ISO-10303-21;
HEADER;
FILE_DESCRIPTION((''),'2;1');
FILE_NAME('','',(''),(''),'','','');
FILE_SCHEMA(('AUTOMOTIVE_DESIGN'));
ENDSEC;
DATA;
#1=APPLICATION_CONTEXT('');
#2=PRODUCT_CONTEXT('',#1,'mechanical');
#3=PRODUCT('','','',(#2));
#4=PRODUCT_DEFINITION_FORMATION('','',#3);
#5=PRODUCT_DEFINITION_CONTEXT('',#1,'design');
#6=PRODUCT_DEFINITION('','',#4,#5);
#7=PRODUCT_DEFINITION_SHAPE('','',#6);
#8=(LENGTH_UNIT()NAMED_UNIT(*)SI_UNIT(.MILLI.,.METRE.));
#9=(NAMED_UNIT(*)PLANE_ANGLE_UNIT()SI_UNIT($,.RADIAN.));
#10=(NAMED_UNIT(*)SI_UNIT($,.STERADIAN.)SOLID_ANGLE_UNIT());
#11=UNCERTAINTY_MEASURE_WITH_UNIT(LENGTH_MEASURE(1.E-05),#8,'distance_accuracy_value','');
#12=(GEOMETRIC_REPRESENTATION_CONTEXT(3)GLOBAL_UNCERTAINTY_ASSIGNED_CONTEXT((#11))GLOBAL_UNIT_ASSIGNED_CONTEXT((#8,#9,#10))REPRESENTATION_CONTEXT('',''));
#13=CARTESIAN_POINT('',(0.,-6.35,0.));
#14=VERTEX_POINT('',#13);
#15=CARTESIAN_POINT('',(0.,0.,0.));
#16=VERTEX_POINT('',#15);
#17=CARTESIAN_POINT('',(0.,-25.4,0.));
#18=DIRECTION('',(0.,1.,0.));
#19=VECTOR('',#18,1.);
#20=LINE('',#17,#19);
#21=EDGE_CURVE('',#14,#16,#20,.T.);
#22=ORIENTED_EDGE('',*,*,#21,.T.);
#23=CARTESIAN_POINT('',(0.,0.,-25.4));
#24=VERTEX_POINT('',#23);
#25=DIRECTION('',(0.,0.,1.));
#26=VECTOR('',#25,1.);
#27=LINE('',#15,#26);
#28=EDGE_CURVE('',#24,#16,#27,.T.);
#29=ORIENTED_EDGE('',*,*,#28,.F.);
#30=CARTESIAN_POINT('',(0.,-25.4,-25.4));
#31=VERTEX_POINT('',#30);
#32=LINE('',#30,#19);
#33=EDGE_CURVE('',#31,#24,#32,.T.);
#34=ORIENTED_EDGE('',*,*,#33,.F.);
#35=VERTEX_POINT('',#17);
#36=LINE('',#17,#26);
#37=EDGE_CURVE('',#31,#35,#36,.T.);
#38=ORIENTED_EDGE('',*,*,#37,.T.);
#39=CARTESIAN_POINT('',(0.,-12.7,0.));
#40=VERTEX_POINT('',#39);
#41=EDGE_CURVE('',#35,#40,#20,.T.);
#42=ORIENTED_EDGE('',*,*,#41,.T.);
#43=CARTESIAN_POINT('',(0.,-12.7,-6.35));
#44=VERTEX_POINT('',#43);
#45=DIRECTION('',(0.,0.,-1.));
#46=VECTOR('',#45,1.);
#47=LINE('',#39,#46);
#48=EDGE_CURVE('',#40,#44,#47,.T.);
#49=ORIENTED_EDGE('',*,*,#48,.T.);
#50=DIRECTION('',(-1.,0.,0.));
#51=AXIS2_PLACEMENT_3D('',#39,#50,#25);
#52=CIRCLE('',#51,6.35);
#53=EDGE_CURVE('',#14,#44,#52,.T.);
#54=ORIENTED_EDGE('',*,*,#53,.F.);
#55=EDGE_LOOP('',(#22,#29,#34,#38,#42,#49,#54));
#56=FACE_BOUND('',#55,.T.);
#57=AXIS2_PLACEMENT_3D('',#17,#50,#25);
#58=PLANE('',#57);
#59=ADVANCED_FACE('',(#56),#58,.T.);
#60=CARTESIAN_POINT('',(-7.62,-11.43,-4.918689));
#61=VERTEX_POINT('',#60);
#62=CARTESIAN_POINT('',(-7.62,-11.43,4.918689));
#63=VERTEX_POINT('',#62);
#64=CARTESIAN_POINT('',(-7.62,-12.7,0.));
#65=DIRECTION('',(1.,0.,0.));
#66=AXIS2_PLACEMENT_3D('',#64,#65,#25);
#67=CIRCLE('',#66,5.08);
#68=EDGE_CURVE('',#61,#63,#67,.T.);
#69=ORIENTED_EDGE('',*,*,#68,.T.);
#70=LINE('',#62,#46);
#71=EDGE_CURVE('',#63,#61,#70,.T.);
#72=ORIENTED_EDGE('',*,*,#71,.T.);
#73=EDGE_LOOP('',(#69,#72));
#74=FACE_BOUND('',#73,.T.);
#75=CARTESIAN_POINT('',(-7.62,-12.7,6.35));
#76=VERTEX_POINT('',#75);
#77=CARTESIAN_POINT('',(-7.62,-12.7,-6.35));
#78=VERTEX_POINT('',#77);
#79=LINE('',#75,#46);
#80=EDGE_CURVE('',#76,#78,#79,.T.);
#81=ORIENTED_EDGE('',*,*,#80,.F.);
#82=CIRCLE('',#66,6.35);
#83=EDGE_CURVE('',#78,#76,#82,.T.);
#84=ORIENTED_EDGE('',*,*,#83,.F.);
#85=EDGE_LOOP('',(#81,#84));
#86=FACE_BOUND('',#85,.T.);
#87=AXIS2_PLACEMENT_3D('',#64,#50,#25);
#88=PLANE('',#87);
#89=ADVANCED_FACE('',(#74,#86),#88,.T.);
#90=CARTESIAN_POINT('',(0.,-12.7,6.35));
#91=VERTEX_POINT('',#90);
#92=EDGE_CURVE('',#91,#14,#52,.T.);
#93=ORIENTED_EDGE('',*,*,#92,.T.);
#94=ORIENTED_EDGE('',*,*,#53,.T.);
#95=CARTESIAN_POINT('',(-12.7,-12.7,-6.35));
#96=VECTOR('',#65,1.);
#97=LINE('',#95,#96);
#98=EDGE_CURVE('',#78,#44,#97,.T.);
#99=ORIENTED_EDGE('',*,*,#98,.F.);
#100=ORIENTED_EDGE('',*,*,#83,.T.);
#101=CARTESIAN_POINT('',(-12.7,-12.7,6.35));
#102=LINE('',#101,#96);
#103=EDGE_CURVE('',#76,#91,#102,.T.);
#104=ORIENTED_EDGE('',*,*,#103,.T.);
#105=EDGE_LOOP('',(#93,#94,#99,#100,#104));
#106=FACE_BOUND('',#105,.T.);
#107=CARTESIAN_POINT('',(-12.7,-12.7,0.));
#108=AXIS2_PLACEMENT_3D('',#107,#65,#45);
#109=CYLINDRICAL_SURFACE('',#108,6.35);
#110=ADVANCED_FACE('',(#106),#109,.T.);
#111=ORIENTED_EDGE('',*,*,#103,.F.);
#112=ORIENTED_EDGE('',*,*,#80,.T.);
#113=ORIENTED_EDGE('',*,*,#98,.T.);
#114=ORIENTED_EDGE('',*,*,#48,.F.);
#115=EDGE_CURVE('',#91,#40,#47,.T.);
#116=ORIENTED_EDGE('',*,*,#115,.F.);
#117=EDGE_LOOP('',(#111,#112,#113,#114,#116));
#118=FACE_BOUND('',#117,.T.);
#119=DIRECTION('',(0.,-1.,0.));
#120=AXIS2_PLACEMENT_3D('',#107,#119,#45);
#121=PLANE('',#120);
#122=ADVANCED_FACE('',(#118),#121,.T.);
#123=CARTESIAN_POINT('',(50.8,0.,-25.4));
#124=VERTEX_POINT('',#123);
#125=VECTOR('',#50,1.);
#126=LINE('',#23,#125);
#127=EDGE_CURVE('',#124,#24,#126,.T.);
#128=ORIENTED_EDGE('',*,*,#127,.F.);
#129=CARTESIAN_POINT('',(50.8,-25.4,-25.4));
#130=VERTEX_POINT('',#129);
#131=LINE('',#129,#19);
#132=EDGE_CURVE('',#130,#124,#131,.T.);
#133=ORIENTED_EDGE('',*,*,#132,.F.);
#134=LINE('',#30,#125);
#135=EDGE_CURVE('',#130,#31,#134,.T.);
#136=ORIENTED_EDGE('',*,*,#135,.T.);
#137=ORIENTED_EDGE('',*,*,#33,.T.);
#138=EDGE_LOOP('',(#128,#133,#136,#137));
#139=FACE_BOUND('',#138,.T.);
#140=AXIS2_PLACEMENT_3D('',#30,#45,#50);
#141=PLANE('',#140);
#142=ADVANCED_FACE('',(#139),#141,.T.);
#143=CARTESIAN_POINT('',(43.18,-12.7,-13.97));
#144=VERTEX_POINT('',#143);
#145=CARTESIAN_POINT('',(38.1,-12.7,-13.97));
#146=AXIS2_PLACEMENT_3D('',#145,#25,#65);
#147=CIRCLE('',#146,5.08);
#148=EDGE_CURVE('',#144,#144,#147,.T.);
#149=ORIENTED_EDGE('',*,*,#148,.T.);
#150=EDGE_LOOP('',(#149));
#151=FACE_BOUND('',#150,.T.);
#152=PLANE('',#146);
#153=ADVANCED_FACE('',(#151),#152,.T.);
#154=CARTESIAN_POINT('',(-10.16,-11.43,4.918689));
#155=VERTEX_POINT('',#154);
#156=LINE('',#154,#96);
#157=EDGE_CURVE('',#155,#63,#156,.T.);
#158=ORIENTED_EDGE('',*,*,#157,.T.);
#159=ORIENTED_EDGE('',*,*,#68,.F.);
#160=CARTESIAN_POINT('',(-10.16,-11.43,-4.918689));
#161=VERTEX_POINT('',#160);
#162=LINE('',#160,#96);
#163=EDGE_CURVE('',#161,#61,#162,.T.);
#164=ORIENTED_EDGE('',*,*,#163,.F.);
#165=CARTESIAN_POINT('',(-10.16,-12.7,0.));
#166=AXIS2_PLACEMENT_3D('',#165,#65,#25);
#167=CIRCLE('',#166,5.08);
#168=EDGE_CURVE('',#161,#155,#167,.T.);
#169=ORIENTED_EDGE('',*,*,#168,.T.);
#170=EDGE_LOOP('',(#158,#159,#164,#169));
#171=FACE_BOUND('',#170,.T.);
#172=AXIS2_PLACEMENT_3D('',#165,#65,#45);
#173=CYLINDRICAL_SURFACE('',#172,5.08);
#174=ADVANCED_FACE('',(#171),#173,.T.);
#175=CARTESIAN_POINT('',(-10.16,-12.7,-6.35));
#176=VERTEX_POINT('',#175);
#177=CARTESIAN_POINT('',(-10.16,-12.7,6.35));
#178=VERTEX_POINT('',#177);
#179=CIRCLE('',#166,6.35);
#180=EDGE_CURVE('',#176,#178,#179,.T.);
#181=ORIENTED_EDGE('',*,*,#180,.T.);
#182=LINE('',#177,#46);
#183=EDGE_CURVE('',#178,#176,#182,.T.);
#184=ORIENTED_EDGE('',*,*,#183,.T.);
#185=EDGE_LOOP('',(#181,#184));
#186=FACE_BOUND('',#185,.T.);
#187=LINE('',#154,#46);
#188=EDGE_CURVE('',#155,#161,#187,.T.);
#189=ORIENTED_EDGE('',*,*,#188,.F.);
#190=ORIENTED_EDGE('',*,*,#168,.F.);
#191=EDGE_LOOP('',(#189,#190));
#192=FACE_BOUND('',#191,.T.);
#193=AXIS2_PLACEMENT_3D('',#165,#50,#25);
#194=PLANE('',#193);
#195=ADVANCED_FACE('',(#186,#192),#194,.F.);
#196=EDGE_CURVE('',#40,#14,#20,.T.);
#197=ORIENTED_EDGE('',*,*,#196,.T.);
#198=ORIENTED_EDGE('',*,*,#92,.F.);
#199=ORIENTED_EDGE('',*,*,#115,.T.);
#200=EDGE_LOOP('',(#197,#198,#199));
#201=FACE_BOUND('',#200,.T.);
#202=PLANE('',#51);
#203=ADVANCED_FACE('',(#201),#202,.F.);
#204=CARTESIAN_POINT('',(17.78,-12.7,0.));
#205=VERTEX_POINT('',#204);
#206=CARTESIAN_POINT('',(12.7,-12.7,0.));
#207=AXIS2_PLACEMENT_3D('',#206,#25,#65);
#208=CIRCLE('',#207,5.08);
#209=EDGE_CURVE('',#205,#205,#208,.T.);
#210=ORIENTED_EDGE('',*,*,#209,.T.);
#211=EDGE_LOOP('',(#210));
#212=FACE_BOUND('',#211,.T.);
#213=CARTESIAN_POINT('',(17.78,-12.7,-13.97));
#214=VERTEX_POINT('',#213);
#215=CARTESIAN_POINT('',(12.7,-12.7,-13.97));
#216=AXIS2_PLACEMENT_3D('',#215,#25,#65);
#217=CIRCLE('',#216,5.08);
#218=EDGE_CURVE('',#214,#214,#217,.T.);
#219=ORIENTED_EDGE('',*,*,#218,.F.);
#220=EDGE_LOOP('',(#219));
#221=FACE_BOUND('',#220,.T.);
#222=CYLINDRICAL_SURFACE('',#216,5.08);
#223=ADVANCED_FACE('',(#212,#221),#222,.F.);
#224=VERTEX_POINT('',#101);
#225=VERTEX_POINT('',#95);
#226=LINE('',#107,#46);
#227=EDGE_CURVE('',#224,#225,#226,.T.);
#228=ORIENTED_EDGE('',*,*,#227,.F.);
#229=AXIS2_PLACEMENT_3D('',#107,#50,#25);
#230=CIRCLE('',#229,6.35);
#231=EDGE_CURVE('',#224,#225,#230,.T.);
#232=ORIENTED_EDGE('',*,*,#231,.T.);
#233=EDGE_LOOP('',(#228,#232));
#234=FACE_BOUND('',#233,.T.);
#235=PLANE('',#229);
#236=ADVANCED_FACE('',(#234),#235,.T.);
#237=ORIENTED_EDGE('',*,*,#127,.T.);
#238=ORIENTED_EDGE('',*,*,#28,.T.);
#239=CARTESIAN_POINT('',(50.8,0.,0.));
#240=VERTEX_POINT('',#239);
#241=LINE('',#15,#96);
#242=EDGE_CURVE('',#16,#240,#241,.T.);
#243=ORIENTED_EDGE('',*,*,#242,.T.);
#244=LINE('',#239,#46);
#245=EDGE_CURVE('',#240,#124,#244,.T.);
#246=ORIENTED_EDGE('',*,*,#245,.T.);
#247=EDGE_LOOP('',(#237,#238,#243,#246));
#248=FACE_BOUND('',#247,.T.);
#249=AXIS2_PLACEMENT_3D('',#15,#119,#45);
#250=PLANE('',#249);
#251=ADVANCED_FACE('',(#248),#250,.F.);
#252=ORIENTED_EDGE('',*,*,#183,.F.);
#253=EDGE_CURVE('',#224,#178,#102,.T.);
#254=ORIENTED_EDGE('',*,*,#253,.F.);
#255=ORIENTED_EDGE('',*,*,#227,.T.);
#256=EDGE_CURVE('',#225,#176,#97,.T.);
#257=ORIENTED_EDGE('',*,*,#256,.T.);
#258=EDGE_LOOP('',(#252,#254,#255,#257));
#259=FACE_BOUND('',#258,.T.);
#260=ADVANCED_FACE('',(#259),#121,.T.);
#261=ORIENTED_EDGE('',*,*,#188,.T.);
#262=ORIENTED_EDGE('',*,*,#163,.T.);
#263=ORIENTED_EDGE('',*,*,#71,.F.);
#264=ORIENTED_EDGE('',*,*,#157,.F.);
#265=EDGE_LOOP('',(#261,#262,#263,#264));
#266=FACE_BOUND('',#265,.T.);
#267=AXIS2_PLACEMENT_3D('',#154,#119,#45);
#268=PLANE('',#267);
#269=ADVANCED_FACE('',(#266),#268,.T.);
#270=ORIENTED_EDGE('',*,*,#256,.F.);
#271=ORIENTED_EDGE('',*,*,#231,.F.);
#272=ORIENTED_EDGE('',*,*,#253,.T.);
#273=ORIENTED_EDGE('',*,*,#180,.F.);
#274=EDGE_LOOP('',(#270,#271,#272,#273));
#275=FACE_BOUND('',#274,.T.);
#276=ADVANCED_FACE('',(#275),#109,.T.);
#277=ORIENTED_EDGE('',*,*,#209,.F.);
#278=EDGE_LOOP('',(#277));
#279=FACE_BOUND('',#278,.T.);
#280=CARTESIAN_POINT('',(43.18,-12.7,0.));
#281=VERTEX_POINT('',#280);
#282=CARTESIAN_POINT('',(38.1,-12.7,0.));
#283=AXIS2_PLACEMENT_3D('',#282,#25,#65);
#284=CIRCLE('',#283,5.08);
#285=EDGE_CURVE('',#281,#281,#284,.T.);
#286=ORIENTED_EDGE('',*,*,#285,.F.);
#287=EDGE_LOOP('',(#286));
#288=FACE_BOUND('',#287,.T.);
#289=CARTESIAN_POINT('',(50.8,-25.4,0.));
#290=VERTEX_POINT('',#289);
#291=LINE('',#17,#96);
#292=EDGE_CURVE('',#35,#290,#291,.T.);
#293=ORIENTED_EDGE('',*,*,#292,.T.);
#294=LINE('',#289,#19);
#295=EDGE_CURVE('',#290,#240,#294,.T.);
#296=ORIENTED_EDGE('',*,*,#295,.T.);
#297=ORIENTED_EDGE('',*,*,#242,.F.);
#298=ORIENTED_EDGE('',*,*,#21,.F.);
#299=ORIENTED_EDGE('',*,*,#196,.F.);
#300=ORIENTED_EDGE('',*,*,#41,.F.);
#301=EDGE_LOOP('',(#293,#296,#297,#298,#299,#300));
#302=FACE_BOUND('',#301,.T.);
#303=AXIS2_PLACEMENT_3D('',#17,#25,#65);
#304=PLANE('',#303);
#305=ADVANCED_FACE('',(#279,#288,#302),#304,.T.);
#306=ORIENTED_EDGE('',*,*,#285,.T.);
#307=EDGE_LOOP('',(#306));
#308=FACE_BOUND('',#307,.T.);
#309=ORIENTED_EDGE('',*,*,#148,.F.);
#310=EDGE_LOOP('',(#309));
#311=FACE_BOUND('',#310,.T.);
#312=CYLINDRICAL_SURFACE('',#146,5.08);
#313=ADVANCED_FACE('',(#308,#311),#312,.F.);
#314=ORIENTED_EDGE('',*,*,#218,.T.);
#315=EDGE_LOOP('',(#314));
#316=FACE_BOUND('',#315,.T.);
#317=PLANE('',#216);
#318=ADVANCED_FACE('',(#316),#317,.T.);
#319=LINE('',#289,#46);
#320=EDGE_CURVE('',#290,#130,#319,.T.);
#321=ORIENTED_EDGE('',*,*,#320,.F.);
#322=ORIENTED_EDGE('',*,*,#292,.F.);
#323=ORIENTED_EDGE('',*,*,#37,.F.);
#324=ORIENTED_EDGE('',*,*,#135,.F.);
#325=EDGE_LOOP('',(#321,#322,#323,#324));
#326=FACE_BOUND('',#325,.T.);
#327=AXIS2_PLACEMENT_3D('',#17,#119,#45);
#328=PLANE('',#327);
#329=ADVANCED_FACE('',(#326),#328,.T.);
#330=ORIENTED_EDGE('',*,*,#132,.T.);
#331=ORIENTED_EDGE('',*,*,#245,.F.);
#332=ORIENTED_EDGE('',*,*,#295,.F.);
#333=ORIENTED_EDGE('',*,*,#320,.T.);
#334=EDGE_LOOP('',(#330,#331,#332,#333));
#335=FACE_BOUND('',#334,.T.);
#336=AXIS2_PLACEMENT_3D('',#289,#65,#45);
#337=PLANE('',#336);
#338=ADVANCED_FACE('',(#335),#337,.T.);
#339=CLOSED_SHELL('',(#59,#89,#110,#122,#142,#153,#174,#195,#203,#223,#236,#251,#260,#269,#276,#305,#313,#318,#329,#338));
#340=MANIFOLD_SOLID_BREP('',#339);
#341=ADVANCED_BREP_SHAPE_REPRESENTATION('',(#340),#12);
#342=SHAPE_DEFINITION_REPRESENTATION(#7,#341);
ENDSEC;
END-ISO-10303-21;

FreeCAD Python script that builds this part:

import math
import FreeCAD as App
import Part
import Sketcher

V = App.Vector
Q = App.Units.Quantity

doc = App.newDocument("Part")
body = doc.addObject("PartDesign::Body", "Body")

sketch1 = body.newObject("Sketcher::SketchObject", "Sketch")
sketch1.AttachmentSupport = (doc.getObject("XZ_Plane"), [""])
sketch1.MapMode = "FlatFace"
sketch1.addGeometry([
    Part.LineSegment(V(0, -25.4, 0), V(0, 0, 0)),
    Part.LineSegment(V(0, 0, 0), V(50.8, 0, 0)),
    Part.LineSegment(V(50.8, 0, 0), V(50.8, -25.4, 0)),
    Part.LineSegment(V(50.8, -25.4, 0), V(0, -25.4, 0)),
], False)
sketch1.addConstraint([
    Sketcher.Constraint("Coincident", 0, 2, 1, 1),
    Sketcher.Constraint("Coincident", 1, 2, 2, 1),
    Sketcher.Constraint("Coincident", 2, 2, 3, 1),
    Sketcher.Constraint("Coincident", 3, 2, 0, 1),
    Sketcher.Constraint("Vertical", 0),
    Sketcher.Constraint("Horizontal", 1),
    Sketcher.Constraint("Vertical", 2),
    Sketcher.Constraint("Horizontal", 3),
    Sketcher.Constraint("Coincident", 0, 2, -1, 1),
    Sketcher.Constraint("DistanceX", 1, 1, 1, 2, Q("2 in")),
    Sketcher.Constraint("DistanceY", 0, 1, 0, 2, Q("1 in")),
])
pad1 = body.newObject("PartDesign::Pad", "Pad")
pad1.Profile = sketch1
pad1.Length = Q("1 in")

sketch2 = body.newObject("Sketcher::SketchObject", "Sketch001")
sketch2.AttachmentSupport = (doc.getObject("XY_Plane"), [""])
sketch2.MapMode = "FlatFace"
sketch2.addGeometry([
    Part.Circle(V(12.7, -12.7, 0), V(0, 0, 1), 5.08),
    Part.Circle(V(38.1, -12.7, 0), V(0, 0, 1), 5.08),
], False)
sketch2.addConstraint([
    Sketcher.Constraint("Equal", 0, 1),
    Sketcher.Constraint("Horizontal", 0, 3, 1, 3),
    Sketcher.Constraint("Diameter", 0, Q("0.4 in")),
    Sketcher.Constraint("DistanceX", 0, 3, 1, 3, Q("1 in")),
    Sketcher.Constraint("DistanceX", -1, 1, 0, 3, Q("0.5 in")),
    Sketcher.Constraint("DistanceY", 0, 3, -1, 1, Q("0.5 in")),
])
pocket1 = body.newObject("PartDesign::Pocket", "Pocket")
pocket1.Profile = sketch2
pocket1.Length = Q("0.55 in")

sketch3 = body.newObject("Sketcher::SketchObject", "Sketch002")
sketch3.AttachmentSupport = (doc.getObject("YZ_Plane"), [""])
sketch3.MapMode = "FlatFace"
sketch3.addGeometry([
    Part.LineSegment(V(-12.7, 6.35, 0), V(-12.7, -6.35, 0)),
    Part.ArcOfCircle(Part.Circle(V(-12.7, 0, 0), V(0, 0, 1), 6.35), math.radians(-90), math.radians(90)),
], False)
sketch3.addConstraint([
    Sketcher.Constraint("Coincident", 0, 1, 1, 2),
    Sketcher.Constraint("Coincident", 1, 1, 0, 2),
    Sketcher.Constraint("Vertical", 0),
    Sketcher.Constraint("PointOnObject", 1, 3, -1),
    Sketcher.Constraint("Vertical", 1, 3, 0, 1),
    Sketcher.Constraint("Radius", 1, Q("0.25 in")),
    Sketcher.Constraint("DistanceX", 1, 3, -1, 1, Q("0.5 in")),
])
pad2 = body.newObject("PartDesign::Pad", "Pad001")
pad2.Profile = sketch3
pad2.Length = Q("0.5 in")
pad2.Reversed = True

sketch4 = body.newObject("Sketcher::SketchObject", "Sketch003")
sketch4.AttachmentSupport = (doc.getObject("YZ_Plane"), [""])
sketch4.MapMode = "FlatFace"
sketch4.AttachmentOffset = App.Placement(V(0, 0, -0.3 * 25.4), App.Rotation())
sketch4.addGeometry([
    Part.LineSegment(V(-12.7, 6.35, 0), V(-12.7, -6.35, 0)),
    Part.ArcOfCircle(Part.Circle(V(-12.7, 0, 0), V(0, 0, 1), 6.35), math.radians(-90), math.radians(90)),
    Part.LineSegment(V(-11.43, -4.918689, 0), V(-11.43, 4.918689, 0)),
    Part.ArcOfCircle(Part.Circle(V(-12.7, 0, 0), V(0, 0, 1), 5.08), math.radians(-75.522488), math.radians(75.522488)),
], False)
sketch4.addConstraint([
    Sketcher.Constraint("Coincident", 0, 1, 1, 2),
    Sketcher.Constraint("Coincident", 1, 1, 0, 2),
    Sketcher.Constraint("Coincident", 2, 1, 3, 1),
    Sketcher.Constraint("Coincident", 3, 2, 2, 2),
    Sketcher.Constraint("Vertical", 0),
    Sketcher.Constraint("Vertical", 2),
    Sketcher.Constraint("Coincident", 3, 3, 1, 3),
    Sketcher.Constraint("PointOnObject", 1, 3, -1),
    Sketcher.Constraint("Vertical", 3, 3, 0, 1),
    Sketcher.Constraint("Radius", 3, Q("0.2 in")),
    Sketcher.Constraint("Radius", 1, Q("0.25 in")),
    Sketcher.Constraint("DistanceX", 1, 3, -1, 1, Q("0.5 in")),
    Sketcher.Constraint("DistanceX", 2, 1, -1, 1, Q("0.45 in")),
])
pocket2 = body.newObject("PartDesign::Pocket", "Pocket001")
pocket2.Profile = sketch4
pocket2.Length = Q("0.1 in")

doc.recompute()
